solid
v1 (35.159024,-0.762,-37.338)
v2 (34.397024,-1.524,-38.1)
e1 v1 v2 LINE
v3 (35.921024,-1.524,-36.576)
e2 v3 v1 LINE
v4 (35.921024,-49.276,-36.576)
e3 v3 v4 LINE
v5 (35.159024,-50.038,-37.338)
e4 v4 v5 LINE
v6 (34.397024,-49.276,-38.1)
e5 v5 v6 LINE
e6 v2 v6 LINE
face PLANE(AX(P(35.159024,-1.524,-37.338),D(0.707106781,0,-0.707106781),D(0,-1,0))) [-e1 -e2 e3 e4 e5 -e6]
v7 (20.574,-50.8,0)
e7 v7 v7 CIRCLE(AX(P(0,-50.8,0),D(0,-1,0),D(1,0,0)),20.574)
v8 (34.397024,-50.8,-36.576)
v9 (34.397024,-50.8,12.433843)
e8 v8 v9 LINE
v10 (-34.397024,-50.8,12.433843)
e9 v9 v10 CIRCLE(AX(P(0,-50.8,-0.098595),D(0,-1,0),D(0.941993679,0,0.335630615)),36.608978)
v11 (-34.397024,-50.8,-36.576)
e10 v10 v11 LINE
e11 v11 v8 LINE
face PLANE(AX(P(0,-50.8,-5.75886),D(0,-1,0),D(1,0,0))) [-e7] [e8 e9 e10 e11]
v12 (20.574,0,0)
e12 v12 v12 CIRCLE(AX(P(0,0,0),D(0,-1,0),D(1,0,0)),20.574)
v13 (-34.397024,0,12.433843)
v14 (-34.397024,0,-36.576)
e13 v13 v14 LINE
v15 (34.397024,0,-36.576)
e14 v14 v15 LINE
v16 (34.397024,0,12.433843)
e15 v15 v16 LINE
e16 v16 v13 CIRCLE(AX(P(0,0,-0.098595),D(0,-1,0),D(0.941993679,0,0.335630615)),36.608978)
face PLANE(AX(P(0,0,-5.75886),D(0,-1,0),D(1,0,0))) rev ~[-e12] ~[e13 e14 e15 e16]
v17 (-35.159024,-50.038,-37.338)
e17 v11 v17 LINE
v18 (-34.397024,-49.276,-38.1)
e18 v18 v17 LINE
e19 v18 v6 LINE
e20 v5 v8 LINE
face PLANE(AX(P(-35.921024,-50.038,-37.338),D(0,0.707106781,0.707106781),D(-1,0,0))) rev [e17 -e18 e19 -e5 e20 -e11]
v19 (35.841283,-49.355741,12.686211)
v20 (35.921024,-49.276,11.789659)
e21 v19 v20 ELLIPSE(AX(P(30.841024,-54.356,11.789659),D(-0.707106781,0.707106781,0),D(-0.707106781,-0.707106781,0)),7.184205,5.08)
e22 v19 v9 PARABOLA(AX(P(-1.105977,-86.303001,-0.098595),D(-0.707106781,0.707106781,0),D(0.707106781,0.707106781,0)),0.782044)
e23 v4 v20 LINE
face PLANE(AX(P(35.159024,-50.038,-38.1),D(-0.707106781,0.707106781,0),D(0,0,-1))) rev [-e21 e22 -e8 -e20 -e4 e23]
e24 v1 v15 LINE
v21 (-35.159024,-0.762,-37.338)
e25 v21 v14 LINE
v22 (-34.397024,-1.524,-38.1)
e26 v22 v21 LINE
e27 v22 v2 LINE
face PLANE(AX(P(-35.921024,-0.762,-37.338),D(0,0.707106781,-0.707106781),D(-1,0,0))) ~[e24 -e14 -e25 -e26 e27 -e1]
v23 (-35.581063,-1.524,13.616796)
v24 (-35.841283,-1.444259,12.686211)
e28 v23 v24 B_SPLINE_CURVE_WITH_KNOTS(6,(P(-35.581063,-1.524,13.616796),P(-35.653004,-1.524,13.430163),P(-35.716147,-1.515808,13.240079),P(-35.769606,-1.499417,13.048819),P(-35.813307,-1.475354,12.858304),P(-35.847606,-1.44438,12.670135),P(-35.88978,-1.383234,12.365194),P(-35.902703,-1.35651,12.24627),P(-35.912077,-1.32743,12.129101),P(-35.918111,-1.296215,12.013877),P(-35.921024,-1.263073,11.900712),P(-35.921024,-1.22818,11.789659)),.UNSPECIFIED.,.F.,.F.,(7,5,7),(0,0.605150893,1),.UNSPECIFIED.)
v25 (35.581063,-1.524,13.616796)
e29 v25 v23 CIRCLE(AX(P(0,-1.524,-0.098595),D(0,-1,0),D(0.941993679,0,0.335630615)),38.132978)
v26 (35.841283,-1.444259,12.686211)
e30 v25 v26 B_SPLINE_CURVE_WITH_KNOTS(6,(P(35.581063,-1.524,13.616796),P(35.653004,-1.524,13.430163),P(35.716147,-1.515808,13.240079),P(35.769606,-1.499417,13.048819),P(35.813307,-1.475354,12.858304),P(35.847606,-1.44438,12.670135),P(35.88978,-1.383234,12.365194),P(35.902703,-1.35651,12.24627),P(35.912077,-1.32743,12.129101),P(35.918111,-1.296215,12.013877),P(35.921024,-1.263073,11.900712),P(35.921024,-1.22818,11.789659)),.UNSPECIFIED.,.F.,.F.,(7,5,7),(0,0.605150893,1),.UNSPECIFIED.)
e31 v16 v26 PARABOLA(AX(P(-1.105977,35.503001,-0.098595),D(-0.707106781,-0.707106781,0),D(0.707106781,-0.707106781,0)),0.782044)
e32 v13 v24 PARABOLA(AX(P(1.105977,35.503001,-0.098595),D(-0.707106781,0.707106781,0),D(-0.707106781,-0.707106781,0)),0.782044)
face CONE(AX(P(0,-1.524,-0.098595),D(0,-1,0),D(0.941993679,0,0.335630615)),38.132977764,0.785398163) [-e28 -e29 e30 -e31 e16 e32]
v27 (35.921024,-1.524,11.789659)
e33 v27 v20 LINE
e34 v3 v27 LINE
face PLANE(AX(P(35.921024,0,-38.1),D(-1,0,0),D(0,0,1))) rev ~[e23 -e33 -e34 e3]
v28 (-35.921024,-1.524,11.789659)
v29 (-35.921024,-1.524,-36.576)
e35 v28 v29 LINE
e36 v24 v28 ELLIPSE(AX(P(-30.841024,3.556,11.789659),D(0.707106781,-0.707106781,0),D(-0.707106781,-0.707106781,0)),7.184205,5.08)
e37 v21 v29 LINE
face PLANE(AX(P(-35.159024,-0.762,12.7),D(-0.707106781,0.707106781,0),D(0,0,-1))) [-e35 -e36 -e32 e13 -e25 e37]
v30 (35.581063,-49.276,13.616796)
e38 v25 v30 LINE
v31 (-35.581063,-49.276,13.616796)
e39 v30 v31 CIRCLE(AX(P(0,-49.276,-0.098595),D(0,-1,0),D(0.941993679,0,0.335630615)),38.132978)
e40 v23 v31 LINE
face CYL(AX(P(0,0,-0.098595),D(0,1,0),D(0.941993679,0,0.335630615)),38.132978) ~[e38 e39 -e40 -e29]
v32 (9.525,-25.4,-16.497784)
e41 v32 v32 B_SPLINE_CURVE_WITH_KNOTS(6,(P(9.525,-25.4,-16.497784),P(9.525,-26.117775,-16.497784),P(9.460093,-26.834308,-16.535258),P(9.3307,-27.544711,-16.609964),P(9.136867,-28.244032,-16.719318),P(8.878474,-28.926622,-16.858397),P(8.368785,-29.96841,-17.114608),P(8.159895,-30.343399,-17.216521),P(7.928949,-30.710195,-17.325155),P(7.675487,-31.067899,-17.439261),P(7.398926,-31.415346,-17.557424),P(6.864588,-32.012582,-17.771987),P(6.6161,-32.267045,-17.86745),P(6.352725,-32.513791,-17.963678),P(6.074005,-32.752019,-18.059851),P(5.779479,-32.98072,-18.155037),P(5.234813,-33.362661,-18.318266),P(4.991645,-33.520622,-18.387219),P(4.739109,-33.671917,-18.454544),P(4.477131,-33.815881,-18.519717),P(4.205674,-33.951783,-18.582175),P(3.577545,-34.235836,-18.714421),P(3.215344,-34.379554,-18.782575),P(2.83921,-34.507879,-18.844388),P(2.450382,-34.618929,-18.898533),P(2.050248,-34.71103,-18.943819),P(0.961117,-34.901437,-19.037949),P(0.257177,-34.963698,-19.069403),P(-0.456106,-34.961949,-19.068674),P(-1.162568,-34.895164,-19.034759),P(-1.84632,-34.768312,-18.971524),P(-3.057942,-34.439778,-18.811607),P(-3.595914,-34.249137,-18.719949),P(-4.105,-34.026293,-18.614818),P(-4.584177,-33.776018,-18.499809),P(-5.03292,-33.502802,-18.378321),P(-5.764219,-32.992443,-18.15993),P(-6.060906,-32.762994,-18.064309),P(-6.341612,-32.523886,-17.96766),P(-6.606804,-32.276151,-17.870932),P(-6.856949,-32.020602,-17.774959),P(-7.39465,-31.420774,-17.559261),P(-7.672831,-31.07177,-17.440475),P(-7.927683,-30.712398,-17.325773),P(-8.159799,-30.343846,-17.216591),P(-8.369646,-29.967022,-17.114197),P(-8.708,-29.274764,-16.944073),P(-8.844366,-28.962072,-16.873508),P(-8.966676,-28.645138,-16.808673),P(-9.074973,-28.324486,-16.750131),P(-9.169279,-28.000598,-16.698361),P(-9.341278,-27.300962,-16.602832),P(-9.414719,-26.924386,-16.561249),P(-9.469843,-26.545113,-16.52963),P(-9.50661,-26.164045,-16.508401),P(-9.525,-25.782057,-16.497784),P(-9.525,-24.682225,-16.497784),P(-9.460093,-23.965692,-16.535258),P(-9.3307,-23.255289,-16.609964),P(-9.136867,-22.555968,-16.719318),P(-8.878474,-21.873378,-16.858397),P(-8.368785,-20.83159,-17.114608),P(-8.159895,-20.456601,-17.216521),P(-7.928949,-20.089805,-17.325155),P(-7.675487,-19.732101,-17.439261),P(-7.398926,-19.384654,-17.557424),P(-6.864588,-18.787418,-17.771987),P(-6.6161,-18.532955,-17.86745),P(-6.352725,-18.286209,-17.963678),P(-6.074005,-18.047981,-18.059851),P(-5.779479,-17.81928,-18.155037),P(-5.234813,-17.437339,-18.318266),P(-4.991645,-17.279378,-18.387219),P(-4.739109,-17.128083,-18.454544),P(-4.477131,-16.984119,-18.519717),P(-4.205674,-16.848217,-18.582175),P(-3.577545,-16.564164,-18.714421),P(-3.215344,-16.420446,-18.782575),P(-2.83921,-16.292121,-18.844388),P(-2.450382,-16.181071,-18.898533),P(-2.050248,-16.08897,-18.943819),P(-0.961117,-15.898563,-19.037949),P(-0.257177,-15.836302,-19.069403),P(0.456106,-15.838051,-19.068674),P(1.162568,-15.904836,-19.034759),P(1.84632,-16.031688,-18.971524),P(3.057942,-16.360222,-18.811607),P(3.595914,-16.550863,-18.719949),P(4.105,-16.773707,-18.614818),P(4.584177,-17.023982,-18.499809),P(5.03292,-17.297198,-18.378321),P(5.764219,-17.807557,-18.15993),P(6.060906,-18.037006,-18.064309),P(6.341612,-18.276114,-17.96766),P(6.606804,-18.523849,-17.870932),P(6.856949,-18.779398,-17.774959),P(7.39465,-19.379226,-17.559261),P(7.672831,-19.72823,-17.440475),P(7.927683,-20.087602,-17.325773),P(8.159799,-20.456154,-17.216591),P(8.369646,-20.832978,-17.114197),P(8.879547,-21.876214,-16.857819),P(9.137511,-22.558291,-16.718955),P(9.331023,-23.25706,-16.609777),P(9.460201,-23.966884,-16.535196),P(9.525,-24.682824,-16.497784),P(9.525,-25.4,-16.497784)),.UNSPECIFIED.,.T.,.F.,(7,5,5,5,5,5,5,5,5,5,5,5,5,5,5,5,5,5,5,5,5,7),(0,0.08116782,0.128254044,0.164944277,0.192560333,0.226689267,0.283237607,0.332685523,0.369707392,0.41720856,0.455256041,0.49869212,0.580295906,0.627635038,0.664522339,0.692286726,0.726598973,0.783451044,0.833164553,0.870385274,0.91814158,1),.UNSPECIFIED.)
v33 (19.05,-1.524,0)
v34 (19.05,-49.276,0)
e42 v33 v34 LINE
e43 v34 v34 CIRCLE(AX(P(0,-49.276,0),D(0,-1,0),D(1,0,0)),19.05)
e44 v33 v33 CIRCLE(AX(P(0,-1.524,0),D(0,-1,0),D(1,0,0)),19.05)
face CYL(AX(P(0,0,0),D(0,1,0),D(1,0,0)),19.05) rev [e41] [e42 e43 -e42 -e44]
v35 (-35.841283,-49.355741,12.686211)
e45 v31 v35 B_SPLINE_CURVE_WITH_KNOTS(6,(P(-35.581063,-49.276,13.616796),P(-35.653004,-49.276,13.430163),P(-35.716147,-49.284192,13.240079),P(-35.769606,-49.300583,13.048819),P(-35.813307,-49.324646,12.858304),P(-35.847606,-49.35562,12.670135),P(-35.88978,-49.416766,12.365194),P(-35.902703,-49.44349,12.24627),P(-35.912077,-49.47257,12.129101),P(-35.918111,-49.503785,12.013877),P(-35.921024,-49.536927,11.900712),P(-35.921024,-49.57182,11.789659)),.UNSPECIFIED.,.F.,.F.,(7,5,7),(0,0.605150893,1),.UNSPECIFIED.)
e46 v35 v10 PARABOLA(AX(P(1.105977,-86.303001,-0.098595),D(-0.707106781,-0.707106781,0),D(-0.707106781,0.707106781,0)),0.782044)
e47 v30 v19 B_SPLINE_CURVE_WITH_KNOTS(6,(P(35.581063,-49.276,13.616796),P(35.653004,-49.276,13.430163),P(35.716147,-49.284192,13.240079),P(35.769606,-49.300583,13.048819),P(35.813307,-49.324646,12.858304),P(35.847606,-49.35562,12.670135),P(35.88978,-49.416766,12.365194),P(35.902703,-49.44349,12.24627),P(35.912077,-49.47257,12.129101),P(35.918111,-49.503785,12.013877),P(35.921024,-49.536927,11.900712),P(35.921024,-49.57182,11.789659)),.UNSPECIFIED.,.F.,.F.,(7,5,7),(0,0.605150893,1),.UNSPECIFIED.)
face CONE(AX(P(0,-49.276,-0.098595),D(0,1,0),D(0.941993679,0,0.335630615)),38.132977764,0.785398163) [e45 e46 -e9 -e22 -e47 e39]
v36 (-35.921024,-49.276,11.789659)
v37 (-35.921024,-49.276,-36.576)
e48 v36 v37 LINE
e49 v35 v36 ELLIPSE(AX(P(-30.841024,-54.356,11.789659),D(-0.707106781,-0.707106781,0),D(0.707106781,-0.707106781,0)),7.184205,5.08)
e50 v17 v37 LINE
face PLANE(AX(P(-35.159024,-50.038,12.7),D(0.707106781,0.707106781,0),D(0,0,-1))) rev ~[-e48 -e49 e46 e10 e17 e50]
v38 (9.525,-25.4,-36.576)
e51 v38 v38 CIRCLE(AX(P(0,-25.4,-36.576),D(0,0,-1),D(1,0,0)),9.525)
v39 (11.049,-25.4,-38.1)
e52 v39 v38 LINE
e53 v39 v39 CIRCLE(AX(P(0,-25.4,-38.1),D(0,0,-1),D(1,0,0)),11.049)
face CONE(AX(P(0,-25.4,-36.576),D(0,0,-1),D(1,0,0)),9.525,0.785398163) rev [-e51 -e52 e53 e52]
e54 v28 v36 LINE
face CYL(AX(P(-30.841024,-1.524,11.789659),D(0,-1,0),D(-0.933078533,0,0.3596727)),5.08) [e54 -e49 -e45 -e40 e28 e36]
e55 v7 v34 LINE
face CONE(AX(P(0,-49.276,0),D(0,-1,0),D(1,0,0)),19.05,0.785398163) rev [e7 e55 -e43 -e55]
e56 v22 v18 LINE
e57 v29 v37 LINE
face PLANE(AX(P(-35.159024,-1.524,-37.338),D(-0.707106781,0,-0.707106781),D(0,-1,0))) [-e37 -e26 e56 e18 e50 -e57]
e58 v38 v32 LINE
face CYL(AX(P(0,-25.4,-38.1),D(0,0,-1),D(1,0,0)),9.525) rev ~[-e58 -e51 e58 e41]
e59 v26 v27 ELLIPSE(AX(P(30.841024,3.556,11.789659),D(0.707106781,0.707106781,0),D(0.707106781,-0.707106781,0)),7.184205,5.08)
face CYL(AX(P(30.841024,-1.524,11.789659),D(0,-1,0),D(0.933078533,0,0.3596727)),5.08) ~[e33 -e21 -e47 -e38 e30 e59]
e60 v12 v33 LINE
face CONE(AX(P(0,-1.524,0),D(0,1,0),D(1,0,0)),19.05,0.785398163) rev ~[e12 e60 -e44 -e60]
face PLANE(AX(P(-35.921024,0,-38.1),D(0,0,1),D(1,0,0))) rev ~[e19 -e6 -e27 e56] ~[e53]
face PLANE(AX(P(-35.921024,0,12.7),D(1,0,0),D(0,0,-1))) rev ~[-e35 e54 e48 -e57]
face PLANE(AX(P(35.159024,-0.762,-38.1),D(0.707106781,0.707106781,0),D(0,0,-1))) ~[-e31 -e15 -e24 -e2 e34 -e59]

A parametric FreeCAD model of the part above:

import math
import FreeCAD as App
import Part
import Sketcher

V = App.Vector
Q = App.Units.Quantity


def edges_at(feature, points):
    """Names of the edges that pass closest to the given points."""
    edges = feature.Shape.Edges
    near = lambda p: min(range(len(edges)), key=lambda i: edges[i].distToShape(Part.Vertex(*p))[0])
    return sorted({f"Edge{near(p) + 1}" for p in points})

doc = App.newDocument("Part")
params = doc.addObject("Spreadsheet::Sheet", "Params")
for row, (alias, value) in enumerate([
    ("sketch1_diameter", "1.5 in"),
    ("sketch1_height", "2 in"),
    ("pad1_length", "2 in"),
    ("sketch2_diameter", "0.75 in"),
    ("pocket1_length", "1 in"),
    ("chamfer_size", "0.06 in"),
    ("chamfer2_size", "0.06 in"),
    ("chamfer3_size", "0.06 in"),
    ("fillet_radius", "0.2 in"),
    ("fillet2_radius", "0.2 in"),
], start=1):
    params.set(f"A{row}", alias)
    params.set(f"B{row}", "=" + value)
    params.setAlias(f"B{row}", alias)

body = doc.addObject("PartDesign::Body", "Body")

# Sketch on XZ plane
sketch1 = body.newObject("Sketcher::SketchObject", "Sketch")
sketch1.AttachmentSupport = (doc.getObject("XZ_Plane"), [""])
sketch1.MapMode = "FlatFace"
sketch1.addGeometry([
    Part.LineSegment(V(36, -38, 0), V(36, 13, 0)),  # 0
    Part.ArcOfCircle(Part.Circle(V(0, 0, 0), V(0, 0, 1), 38), math.radians(20), math.radians(160)),  # 1
    Part.LineSegment(V(-36, 13, 0), V(-36, -38, 0)),  # 2
    Part.LineSegment(V(-36, -38, 0), V(36, -38, 0)),  # 3
    Part.Circle(V(0, 0, 0), V(0, 0, 1), 19),  # 4
], False)
sketch1.addConstraint([
    Sketcher.Constraint("Coincident", 0, 2, 1, 1),
    Sketcher.Constraint("Coincident", 1, 2, 2, 1),
    Sketcher.Constraint("Coincident", 2, 2, 3, 1),
    Sketcher.Constraint("Coincident", 3, 2, 0, 1),
    Sketcher.Constraint("Vertical", 0),
    Sketcher.Constraint("Vertical", 2),
    Sketcher.Constraint("Horizontal", 3),
    Sketcher.Constraint("Coincident", 4, 3, -1, 1),
    Sketcher.Constraint("Symmetric", 0, 2, 1, 2, -2),
    Sketcher.Constraint("Diameter", 4, Q("1.5 in")),
    Sketcher.Constraint("DistanceY", 0, 1, 0, 2, Q("2 in")),
    Sketcher.Constraint("DistanceY", -1, 1, 0, 2, Q("0.5 in")),
    Sketcher.Constraint("Radius", 1, Q("38.132978 mm")),
    Sketcher.Constraint("DistanceX", 3, 1, 3, 2, Q("71.842048 mm")),
])
sketch1.setExpression("Constraints[9]", "Params.sketch1_diameter")
sketch1.setExpression("Constraints[10]", "Params.sketch1_height")
pad1 = body.newObject("PartDesign::Pad", "Pad")
pad1.Profile = sketch1
pad1.setExpression("Length", "Params.pad1_length")

# Sketch on XY plane
sketch2 = body.newObject("Sketcher::SketchObject", "Sketch001")
sketch2.AttachmentSupport = (doc.getObject("XY_Plane"), [""])
sketch2.MapMode = "FlatFace"
sketch2.AttachmentOffset = App.Placement(V(0, 0, -1.5 * 25.4), App.Rotation())
sketch2.addGeometry(Part.Circle(V(0, -25, 0), V(0, 0, 1), 10), False)
sketch2.addConstraint([
    Sketcher.Constraint("PointOnObject", 0, 3, -2),
    Sketcher.Constraint("Diameter", 0, Q("0.75 in")),
    Sketcher.Constraint("DistanceY", 0, 3, -1, 1, Q("1 in")),
])
sketch2.setExpression("Constraints[1]", "Params.sketch2_diameter")
pocket1 = body.newObject("PartDesign::Pocket", "Pocket")
pocket1.Profile = sketch2
pocket1.setExpression("Length", "Params.pocket1_length")
pocket1.Reversed = True
doc.recompute()

chamfer = body.newObject("PartDesign::Chamfer", "Chamfer")
chamfer.Base = (pocket1, edges_at(pocket1, [
    (0, -50.8, 38.034),
    (-35.921, -50.8, -12.7),
    (0, -50.8, -38.1),
    (35.921, -50.8, -12.7),
    (-19.05, -50.8, 0),
]))
chamfer.setExpression("Size", "Params.chamfer_size")
doc.recompute()

chamfer2 = body.newObject("PartDesign::Chamfer", "Chamfer001")
chamfer2.Base = (chamfer, edges_at(chamfer, [
    (0, 0, 38.034),
    (35.921, 0, -12.7),
    (0, 0, -38.1),
    (-35.921, 0, -12.7),
    (-19.05, 0, 0),
]))
chamfer2.setExpression("Size", "Params.chamfer2_size")
doc.recompute()

chamfer3 = body.newObject("PartDesign::Chamfer", "Chamfer002")
chamfer3.Base = (chamfer2, edges_at(chamfer2, [(35.921, -25.4, -38.1), (-35.921, -25.4, -38.1), (-9.525, -25.4, -38.1)]))
chamfer3.setExpression("Size", "Params.chamfer3_size")
doc.recompute()

fillet = body.newObject("PartDesign::Fillet", "Fillet")
fillet.Base = (chamfer3, edges_at(chamfer3, [(-35.921, -25.4, 12.7)]))
fillet.setExpression("Radius", "Params.fillet_radius")
doc.recompute()

fillet2 = body.newObject("PartDesign::Fillet", "Fillet001")
fillet2.Base = (fillet, edges_at(fillet, [(35.921, -25.4, 12.7)]))
fillet2.setExpression("Radius", "Params.fillet2_radius")

doc.recompute()
